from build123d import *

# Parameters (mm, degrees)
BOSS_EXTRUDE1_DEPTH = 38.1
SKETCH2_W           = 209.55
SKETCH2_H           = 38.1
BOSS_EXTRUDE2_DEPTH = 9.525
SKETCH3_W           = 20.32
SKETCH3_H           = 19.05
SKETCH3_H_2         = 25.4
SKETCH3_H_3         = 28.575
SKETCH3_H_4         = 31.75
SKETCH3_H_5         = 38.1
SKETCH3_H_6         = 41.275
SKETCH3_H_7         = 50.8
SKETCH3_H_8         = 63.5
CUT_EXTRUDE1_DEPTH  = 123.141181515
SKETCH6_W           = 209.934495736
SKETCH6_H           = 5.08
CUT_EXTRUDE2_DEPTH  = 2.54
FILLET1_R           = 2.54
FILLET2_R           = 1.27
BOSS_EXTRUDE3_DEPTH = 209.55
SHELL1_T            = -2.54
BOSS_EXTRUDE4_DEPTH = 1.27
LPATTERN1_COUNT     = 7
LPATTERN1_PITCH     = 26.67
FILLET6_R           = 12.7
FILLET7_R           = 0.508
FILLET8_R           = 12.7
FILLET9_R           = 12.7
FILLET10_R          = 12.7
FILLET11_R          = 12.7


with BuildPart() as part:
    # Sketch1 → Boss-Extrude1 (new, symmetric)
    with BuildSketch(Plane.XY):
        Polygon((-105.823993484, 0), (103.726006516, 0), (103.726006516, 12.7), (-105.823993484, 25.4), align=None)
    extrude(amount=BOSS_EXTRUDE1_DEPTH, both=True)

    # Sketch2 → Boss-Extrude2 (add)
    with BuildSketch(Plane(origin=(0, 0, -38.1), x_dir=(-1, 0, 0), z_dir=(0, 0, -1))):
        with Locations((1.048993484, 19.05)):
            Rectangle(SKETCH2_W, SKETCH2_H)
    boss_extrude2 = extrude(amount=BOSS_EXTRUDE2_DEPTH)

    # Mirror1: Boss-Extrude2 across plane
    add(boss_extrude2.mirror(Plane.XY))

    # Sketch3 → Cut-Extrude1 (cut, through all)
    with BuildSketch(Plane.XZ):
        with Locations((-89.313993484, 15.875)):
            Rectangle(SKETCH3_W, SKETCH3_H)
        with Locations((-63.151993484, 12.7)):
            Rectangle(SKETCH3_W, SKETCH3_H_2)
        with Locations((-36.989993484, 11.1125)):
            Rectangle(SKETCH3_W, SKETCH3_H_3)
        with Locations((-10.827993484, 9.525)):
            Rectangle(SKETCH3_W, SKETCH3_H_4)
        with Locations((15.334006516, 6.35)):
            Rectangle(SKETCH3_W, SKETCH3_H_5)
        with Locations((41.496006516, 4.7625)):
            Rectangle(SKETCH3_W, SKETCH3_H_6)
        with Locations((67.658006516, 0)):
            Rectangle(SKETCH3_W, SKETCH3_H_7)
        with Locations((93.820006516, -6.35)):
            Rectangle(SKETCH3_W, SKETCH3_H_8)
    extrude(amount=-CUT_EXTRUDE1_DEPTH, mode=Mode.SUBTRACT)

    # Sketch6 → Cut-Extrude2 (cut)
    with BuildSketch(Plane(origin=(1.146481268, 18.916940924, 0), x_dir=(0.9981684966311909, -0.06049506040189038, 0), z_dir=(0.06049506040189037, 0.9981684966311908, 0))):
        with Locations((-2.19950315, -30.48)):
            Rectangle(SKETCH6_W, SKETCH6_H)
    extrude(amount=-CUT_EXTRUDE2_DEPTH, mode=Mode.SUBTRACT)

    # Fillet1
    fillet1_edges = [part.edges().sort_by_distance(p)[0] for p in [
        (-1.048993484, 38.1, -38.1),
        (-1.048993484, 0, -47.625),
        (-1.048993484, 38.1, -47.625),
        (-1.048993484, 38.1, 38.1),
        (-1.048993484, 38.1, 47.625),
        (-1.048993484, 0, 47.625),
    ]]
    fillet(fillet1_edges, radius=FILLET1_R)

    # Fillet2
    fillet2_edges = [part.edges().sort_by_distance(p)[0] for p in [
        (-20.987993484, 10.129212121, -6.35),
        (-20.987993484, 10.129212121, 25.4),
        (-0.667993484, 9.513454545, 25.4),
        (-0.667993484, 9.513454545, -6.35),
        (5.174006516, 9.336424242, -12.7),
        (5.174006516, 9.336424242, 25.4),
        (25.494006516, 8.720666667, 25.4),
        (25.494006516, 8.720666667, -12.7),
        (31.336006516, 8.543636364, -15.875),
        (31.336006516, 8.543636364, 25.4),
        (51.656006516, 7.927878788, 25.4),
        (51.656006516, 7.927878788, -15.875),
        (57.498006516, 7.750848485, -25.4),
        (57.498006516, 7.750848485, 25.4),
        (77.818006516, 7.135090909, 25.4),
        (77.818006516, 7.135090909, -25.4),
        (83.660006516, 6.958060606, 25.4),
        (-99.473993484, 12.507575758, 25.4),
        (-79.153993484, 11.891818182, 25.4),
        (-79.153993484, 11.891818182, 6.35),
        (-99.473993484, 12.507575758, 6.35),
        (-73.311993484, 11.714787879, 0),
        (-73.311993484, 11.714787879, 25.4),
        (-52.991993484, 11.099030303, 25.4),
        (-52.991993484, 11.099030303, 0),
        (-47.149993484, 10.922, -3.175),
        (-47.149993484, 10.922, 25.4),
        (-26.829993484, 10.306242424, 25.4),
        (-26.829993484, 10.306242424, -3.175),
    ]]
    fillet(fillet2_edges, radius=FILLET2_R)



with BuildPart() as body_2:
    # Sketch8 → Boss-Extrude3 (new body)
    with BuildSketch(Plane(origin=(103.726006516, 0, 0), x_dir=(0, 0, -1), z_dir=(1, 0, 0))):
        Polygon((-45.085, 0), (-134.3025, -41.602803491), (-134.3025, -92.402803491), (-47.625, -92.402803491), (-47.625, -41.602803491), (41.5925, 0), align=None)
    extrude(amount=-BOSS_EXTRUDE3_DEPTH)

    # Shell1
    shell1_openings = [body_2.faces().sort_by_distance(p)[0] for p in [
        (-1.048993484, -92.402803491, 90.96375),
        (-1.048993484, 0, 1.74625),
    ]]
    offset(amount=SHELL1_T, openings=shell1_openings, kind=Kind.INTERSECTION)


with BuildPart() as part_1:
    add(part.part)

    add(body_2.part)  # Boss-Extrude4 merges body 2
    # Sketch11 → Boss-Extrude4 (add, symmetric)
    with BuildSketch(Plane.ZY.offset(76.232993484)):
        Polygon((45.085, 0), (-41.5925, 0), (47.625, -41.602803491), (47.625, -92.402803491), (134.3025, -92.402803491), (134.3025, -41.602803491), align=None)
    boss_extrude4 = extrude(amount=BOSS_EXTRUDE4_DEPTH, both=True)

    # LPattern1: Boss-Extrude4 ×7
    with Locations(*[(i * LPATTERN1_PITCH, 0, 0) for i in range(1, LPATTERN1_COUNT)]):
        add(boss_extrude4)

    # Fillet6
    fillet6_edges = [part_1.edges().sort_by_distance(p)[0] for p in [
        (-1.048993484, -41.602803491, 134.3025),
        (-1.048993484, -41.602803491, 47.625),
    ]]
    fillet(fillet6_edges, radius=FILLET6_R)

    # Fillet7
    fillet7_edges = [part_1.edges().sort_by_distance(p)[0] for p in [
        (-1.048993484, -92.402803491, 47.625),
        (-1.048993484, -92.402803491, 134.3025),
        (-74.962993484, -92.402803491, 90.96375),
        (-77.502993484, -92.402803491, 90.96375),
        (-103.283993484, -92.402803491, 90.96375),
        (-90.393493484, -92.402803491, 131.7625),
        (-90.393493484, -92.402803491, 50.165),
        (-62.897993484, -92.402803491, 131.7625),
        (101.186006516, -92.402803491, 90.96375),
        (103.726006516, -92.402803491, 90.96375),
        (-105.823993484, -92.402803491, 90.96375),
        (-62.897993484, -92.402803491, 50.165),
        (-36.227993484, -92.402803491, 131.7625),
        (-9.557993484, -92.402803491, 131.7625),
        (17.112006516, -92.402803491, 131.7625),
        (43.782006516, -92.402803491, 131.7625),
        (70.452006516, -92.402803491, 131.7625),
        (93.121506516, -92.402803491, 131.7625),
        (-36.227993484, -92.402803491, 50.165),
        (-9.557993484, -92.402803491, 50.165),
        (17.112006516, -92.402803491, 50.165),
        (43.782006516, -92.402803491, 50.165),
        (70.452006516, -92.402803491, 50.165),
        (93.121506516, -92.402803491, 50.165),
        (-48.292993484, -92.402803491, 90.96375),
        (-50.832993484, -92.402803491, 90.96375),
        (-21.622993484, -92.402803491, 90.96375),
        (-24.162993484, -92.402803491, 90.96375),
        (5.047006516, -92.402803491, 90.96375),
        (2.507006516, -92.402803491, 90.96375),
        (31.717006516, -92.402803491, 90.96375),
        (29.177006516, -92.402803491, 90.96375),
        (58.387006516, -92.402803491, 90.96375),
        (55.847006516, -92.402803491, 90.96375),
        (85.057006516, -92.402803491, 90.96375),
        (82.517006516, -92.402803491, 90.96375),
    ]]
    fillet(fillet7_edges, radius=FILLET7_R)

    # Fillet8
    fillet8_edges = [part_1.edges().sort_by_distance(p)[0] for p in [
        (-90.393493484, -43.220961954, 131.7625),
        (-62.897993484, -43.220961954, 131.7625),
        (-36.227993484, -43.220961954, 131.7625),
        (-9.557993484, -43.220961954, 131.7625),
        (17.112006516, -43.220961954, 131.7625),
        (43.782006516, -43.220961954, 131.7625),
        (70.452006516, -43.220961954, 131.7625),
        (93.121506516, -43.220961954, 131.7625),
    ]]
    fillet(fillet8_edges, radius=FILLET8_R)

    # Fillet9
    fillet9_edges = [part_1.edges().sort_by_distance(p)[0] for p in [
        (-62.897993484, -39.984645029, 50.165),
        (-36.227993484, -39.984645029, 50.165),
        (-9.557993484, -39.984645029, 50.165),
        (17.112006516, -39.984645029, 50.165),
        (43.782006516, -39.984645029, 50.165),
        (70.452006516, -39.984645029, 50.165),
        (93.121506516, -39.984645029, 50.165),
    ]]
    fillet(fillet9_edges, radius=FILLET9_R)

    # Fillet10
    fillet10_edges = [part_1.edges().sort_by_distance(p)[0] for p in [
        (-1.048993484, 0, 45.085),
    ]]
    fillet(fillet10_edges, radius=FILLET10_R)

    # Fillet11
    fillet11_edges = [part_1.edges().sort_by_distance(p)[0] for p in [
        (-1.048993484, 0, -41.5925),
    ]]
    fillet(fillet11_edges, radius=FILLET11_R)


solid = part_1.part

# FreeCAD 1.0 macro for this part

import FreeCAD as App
import Part
import Sketcher
from FreeCAD import Vector
Q = App.Units.Quantity


def edges_at(feature, points):
    """Names of the edges that pass closest to the given points."""
    edges = feature.Shape.Edges
    near = lambda p: min(range(len(edges)), key=lambda i: edges[i].distToShape(Part.Vertex(*p))[0])
    return sorted({f"Edge{near(p) + 1}" for p in points})


def faces_at(feature, points):
    """Names of the faces that lie closest to the given points."""
    faces = feature.Shape.Faces
    near = lambda p: min(range(len(faces)), key=lambda i: faces[i].distToShape(Part.Vertex(*p))[0])
    return sorted({f"Face{near(p) + 1}" for p in points})


def add_polygon(sketch, points):
    """Adds a closed chain of lines whose ends are joined by coincident constraints."""
    first, n = sketch.GeometryCount, len(points)
    for a, b in zip(points, points[1:] + points[:1]):
        sketch.addGeometry(Part.LineSegment(App.Vector(*a, 0), App.Vector(*b, 0)), False)
    for i in range(n):
        sketch.addConstraint(Sketcher.Constraint("Coincident", first + i, 2, first + (i + 1) % n, 1))

doc = App.newDocument("Part")
params = doc.addObject("Spreadsheet::Sheet", "Params")
for row, (alias, value) in enumerate([
    ("sketch1_height", "1 in"),
    ("sketch1_height2", "0.5 in"),
    ("sketch1_width", "8.25 in"),
    ("pad1_length", "3 in"),
    ("sketch2_height", "1.5 in"),
    ("sketch2_width", "8.25 in"),
    ("pad2_length", "0.375 in"),
    ("sketch3_height", "1 in"),
    ("sketch3_height2", "2 in"),
    ("sketch3_width", "0.8 in"),
    ("sketch3_height3", "1.5 in"),
    ("sketch3_height4", "2.5 in"),
    ("sketch4_height", "0.2 in"),
    ("pocket2_length", "0.1 in"),
    ("fillet_radius", "0.1 in"),
    ("fillet2_radius", "0.05 in"),
    ("sketch5_width", "2 in"),
    ("pad3_length", "8.25 in"),
    ("thickness_wall", "0.1 in"),
    ("sketch6_width", "2 in"),
    ("pad4_length", "0.1 in"),
    ("linearpattern_pitch", "1.05 in"),
    ("fillet3_radius", "0.5 in"),
    ("fillet4_radius", "0.02 in"),
    ("fillet5_radius", "0.5 in"),
    ("fillet6_radius", "0.5 in"),
    ("fillet7_radius", "0.5 in"),
    ("fillet8_radius", "0.5 in"),
], start=1):
    params.set(f"A{row}", alias)
    params.set(f"B{row}", "=" + value)
    params.setAlias(f"B{row}", alias)

body = doc.addObject("PartDesign::Body", "Body")

# Sketch on XY plane
sketch1 = body.newObject("Sketcher::SketchObject", "Sketch")
sketch1.AttachmentSupport = (doc.getObject("XY_Plane"), [""])
sketch1.MapMode = "FlatFace"
add_polygon(sketch1, [(-105.823993, 0), (103.726007, 0), (103.726007, 12.7), (-105.823993, 25.4)])  # lines 0-3
sketch1.addConstraint([
    Sketcher.Constraint("Horizontal", 0),
    Sketcher.Constraint("Vertical", 1),
    Sketcher.Constraint("Vertical", 3),
    Sketcher.Constraint("PointOnObject", 0, 2, -1),
    Sketcher.Constraint("DistanceY", 3, 2, 3, 1, Q("1 in")),
    Sketcher.Constraint("DistanceY", 1, 1, 1, 2, Q("0.5 in")),
    Sketcher.Constraint("DistanceX", 0, 1, 0, 2, Q("8.25 in")),
    Sketcher.Constraint("DistanceX", -1, 1, 0, 2, Q("103.726007 mm")),
])
sketch1.setExpression("Constraints[8]", "Params.sketch1_height")
sketch1.setExpression("Constraints[9]", "Params.sketch1_height2")
sketch1.setExpression("Constraints[10]", "Params.sketch1_width")
pad1 = body.newObject("PartDesign::Pad", "Pad")
pad1.Profile = sketch1
pad1.setExpression("Length", "Params.pad1_length")
pad1.Midplane = True

# Sketch on XY plane
sketch2 = body.newObject("Sketcher::SketchObject", "Sketch001")
sketch2.AttachmentSupport = (doc.getObject("XY_Plane"), [""])
sketch2.MapMode = "FlatFace"
sketch2.AttachmentOffset = App.Placement(Vector(0, 0, -1.5 * 25.4), App.Rotation())
add_polygon(sketch2, [(103.726007, 38.1), (103.726007, 0), (-105.823993, 0), (-105.823993, 38.1)])  # lines 0-3
sketch2.addConstraint([
    Sketcher.Constraint("Vertical", 0),
    Sketcher.Constraint("Horizontal", 1),
    Sketcher.Constraint("Vertical", 2),
    Sketcher.Constraint("Horizontal", 3),
    Sketcher.Constraint("PointOnObject", 0, 2, -1),
    Sketcher.Constraint("DistanceY", 0, 2, 0, 1, Q("1.5 in")),
    Sketcher.Constraint("DistanceX", 1, 2, 1, 1, Q("8.25 in")),
    Sketcher.Constraint("DistanceX", -1, 1, 0, 2, Q("103.726007 mm")),
])
sketch2.setExpression("Constraints[9]", "Params.sketch2_height")
sketch2.setExpression("Constraints[10]", "Params.sketch2_width")
pad2 = body.newObject("PartDesign::Pad", "Pad001")
pad2.Profile = sketch2
pad2.setExpression("Length", "Params.pad2_length")
pad2.Reversed = True
doc.recompute()

mirrored = body.newObject("PartDesign::Mirrored", "Mirrored")
mirrored.Originals = [pad2]
mirrored.MirrorPlane = (doc.getObject("XY_Plane"), [""])
body.Tip = mirrored

# Sketch on XZ plane
sketch3 = body.newObject("Sketcher::SketchObject", "Sketch002")
sketch3.AttachmentSupport = (doc.getObject("XZ_Plane"), [""])
sketch3.MapMode = "FlatFace"
add_polygon(sketch3, [(-99.473993, 25.4), (-99.473993, 6.35), (-79.153993, 6.35), (-79.153993, 25.4)])  # lines 0-3
add_polygon(sketch3, [(-73.311993, 25.4), (-73.311993, 0), (-52.991993, 0), (-52.991993, 25.4)])  # lines 4-7
add_polygon(sketch3, [(-47.149993, 25.4), (-47.149993, -3.175), (-26.829993, -3.175), (-26.829993, 25.4)])  # lines 8-11
add_polygon(sketch3, [(-20.987993, 25.4), (-20.987993, -6.35), (-0.667993, -6.35), (-0.667993, 25.4)])  # lines 12-15
add_polygon(sketch3, [(5.174007, 25.4), (5.174007, -12.7), (25.494007, -12.7), (25.494007, 25.4)])  # lines 16-19
add_polygon(sketch3, [(31.336007, 25.4), (31.336007, -15.875), (51.656007, -15.875), (51.656007, 25.4)])  # lines 20-23
add_polygon(sketch3, [(57.498007, 25.4), (57.498007, -25.4), (77.818007, -25.4), (77.818007, 25.4)])  # lines 24-27
add_polygon(sketch3, [(83.660007, 25.4), (83.660007, -38.1), (103.980007, -38.1), (103.980007, 25.4)])  # lines 28-31
sketch3.addConstraint([
    Sketcher.Constraint("Vertical", 0),
    Sketcher.Constraint("Horizontal", 1),
    Sketcher.Constraint("Vertical", 2),
    Sketcher.Constraint("Horizontal", 3),
    Sketcher.Constraint("Vertical", 4),
    Sketcher.Constraint("Horizontal", 5),
    Sketcher.Constraint("Vertical", 6),
    Sketcher.Constraint("Horizontal", 7),
    Sketcher.Constraint("Vertical", 8),
    Sketcher.Constraint("Horizontal", 9),
    Sketcher.Constraint("Vertical", 10),
    Sketcher.Constraint("Horizontal", 11),
    Sketcher.Constraint("Vertical", 12),
    Sketcher.Constraint("Horizontal", 13),
    Sketcher.Constraint("Vertical", 14),
    Sketcher.Constraint("Horizontal", 15),
    Sketcher.Constraint("Vertical", 16),
    Sketcher.Constraint("Horizontal", 17),
    Sketcher.Constraint("Vertical", 18),
    Sketcher.Constraint("Horizontal", 19),
    Sketcher.Constraint("Vertical", 20),
    Sketcher.Constraint("Horizontal", 21),
    Sketcher.Constraint("Vertical", 22),
    Sketcher.Constraint("Horizontal", 23),
    Sketcher.Constraint("Vertical", 24),
    Sketcher.Constraint("Horizontal", 25),
    Sketcher.Constraint("Vertical", 26),
    Sketcher.Constraint("Horizontal", 27),
    Sketcher.Constraint("Vertical", 28),
    Sketcher.Constraint("Horizontal", 29),
    Sketcher.Constraint("Vertical", 30),
    Sketcher.Constraint("Horizontal", 31),
    Sketcher.Constraint("PointOnObject", 4, 2, -1),
    Sketcher.Constraint("Horizontal", 3, 2, 6, 2),
    Sketcher.Constraint("Horizontal", 7, 2, 10, 2),
    Sketcher.Constraint("Horizontal", 11, 2, 14, 2),
    Sketcher.Constraint("Horizontal", 15, 2, 18, 2),
    Sketcher.Constraint("Horizontal", 19, 2, 22, 2),
    Sketcher.Constraint("Horizontal", 23, 2, 26, 2),
    Sketcher.Constraint("Horizontal", 27, 2, 30, 2),
    Sketcher.Constraint("Equal", 3, 5),
    Sketcher.Constraint("Equal", 7, 9),
    Sketcher.Constraint("Equal", 11, 13),
    Sketcher.Constraint("Equal", 15, 17),
    Sketcher.Constraint("Equal", 19, 21),
    Sketcher.Constraint("Equal", 23, 25),
    Sketcher.Constraint("Equal", 27, 29),
    Sketcher.Constraint("DistanceY", 4, 2, 4, 1, Q("1 in")),
    Sketcher.Constraint("DistanceY", 24, 2, 24, 1, Q("2 in")),
    Sketcher.Constraint("DistanceX", 1, 1, 1, 2, Q("0.8 in")),
    Sketcher.Constraint("DistanceY", 16, 2, 16, 1, Q("1.5 in")),
    Sketcher.Constraint("DistanceY", 28, 2, 28, 1, Q("2.5 in")),
    Sketcher.Constraint("DistanceY", 0, 2, 0, 1, Q("0.75 in")),
    Sketcher.Constraint("DistanceY", 12, 2, 12, 1, Q("1.25 in")),
    Sketcher.Constraint("DistanceY", 8, 2, 8, 1, Q("1.125 in")),
    Sketcher.Constraint("DistanceY", 20, 2, 20, 1, Q("1.625 in")),
    Sketcher.Constraint("DistanceX", 1, 2, 4, 2, Q("0.23 in")),
    Sketcher.Constraint("DistanceX", 5, 2, 8, 2, Q("0.23 in")),
    Sketcher.Constraint("DistanceX", 9, 2, 12, 2, Q("0.23 in")),
    Sketcher.Constraint("DistanceX", 13, 2, 16, 2, Q("0.23 in")),
    Sketcher.Constraint("DistanceX", 17, 2, 20, 2, Q("0.23 in")),
    Sketcher.Constraint("DistanceX", 21, 2, 24, 2, Q("0.23 in")),
    Sketcher.Constraint("DistanceX", 25, 2, 28, 2, Q("0.23 in")),
    Sketcher.Constraint("DistanceX", 0, 2, -1, 1, Q("99.473993 mm")),
])
sketch3.setExpression("Constraints[79]", "Params.sketch3_height")
sketch3.setExpression("Constraints[80]", "Params.sketch3_height2")
sketch3.setExpression("Constraints[81]", "Params.sketch3_width")
sketch3.setExpression("Constraints[82]", "Params.sketch3_height3")
sketch3.setExpression("Constraints[83]", "Params.sketch3_height4")
pocket1 = body.newObject("PartDesign::Pocket", "Pocket")
pocket1.Profile = sketch3
pocket1.Type = "ThroughAll"

# Sketch on an angled plane
sketch4 = body.newObject("Sketcher::SketchObject", "Sketch003")
sketch4.Placement = App.Placement(Vector(1.146481, 18.916941, 0), App.Rotation(Vector(0.998168497, -0.06049506, 0), Vector(0, 0, -1.000000001), Vector(0.06049506, 0.998168497, 0), "ZXY"))
add_polygon(sketch4, [(-107.166751, -27.94), (-107.166751, -33.02), (102.767745, -33.02), (102.767745, -27.94)])  # lines 0-3
sketch4.addConstraint([
    Sketcher.Constraint("Vertical", 0),
    Sketcher.Constraint("Horizontal", 1),
    Sketcher.Constraint("Vertical", 2),
    Sketcher.Constraint("Horizontal", 3),
    Sketcher.Constraint("DistanceY", 0, 2, 0, 1, Q("0.2 in")),
    Sketcher.Constraint("DistanceY", 0, 2, -1, 1, Q("1.3 in")),
    Sketcher.Constraint("DistanceX", 1, 1, 1, 2, Q("209.934496 mm")),
    Sketcher.Constraint("DistanceX", 0, 2, -1, 1, Q("107.166751 mm")),
])
sketch4.setExpression("Constraints[8]", "Params.sketch4_height")
pocket2 = body.newObject("PartDesign::Pocket", "Pocket001")
pocket2.Profile = sketch4
pocket2.setExpression("Length", "Params.pocket2_length")
doc.recompute()

fillet = body.newObject("PartDesign::Fillet", "Fillet")
fillet.Base = (pocket2, edges_at(pocket2, [
    (-1.049, 38.1, -38.1),
    (-1.049, 0, -47.625),
    (-1.049, 38.1, -47.625),
    (-1.049, 38.1, 38.1),
    (-1.049, 38.1, 47.625),
    (-1.049, 0, 47.625),
]))
fillet.setExpression("Radius", "Params.fillet_radius")
doc.recompute()

fillet2 = body.newObject("PartDesign::Fillet", "Fillet001")
fillet2.Base = (fillet, edges_at(fillet, [
    (-20.988, 10.129, -6.35),
    (-20.988, 10.129, 25.4),
    (-0.668, 9.513, 25.4),
    (-0.668, 9.513, -6.35),
    (5.174, 9.336, -12.7),
    (5.174, 9.336, 25.4),
    (25.494, 8.721, 25.4),
    (25.494, 8.721, -12.7),
    (31.336, 8.544, -15.875),
    (31.336, 8.544, 25.4),
    (51.656, 7.928, 25.4),
    (51.656, 7.928, -15.875),
    (57.498, 7.751, -25.4),
    (57.498, 7.751, 25.4),
    (77.818, 7.135, 25.4),
    (77.818, 7.135, -25.4),
    (83.66, 6.958, 25.4),
    (-99.474, 12.508, 25.4),
    (-79.154, 11.892, 25.4),
    (-79.154, 11.892, 6.35),
    (-99.474, 12.508, 6.35),
    (-73.312, 11.715, 0),
    (-73.312, 11.715, 25.4),
    (-52.992, 11.099, 25.4),
    (-52.992, 11.099, 0),
    (-47.15, 10.922, -3.175),
    (-47.15, 10.922, 25.4),
    (-26.83, 10.306, 25.4),
    (-26.83, 10.306, -3.175),
]))
fillet2.setExpression("Radius", "Params.fillet2_radius")
body2 = doc.addObject("PartDesign::Body", "Body001")

# Sketch on YZ plane
sketch5 = body2.newObject("Sketcher::SketchObject", "Sketch004")
sketch5.AttachmentSupport = (doc.getObject("YZ_Plane001"), [""])
sketch5.MapMode = "FlatFace"
sketch5.AttachmentOffset = App.Placement(Vector(0, 0, 103.726007), App.Rotation())
add_polygon(sketch5, [(0, 45.085), (-41.602803, 134.3025), (-92.402803, 134.3025), (-92.402803, 47.625), (-41.602803, 47.625), (0, -41.5925)])  # lines 0-5
sketch5.addConstraint([
    Sketcher.Constraint("Horizontal", 1),
    Sketcher.Constraint("Vertical", 2),
    Sketcher.Constraint("Horizontal", 3),
    Sketcher.Constraint("Vertical", 5),
    Sketcher.Constraint("PointOnObject", 4, 2, -2),
    Sketcher.Constraint("Parallel", 0, 4),
    Sketcher.Constraint("Vertical", 0, 2, 3, 2),
    Sketcher.Constraint("DistanceX", 1, 2, 1, 1, Q("2 in")),
    Sketcher.Constraint("Angle", 0, Q("115 deg")),
    Sketcher.Constraint("DistanceY", 5, 2, 3, 2, Q("0.1 in")),
    Sketcher.Constraint("DistanceY", 2, 2, 2, 1, Q("3.4125 in")),
    Sketcher.Constraint("DistanceY", -1, 1, 2, 2, Q("1.875 in")),
])
sketch5.setExpression("Constraints[13]", "Params.sketch5_width")
pad3 = body2.newObject("PartDesign::Pad", "Pad002")
pad3.Profile = sketch5
pad3.setExpression("Length", "Params.pad3_length")
pad3.Reversed = True
doc.recompute()

thickness = body2.newObject("PartDesign::Thickness", "Thickness")
thickness.Base = (pad3, faces_at(pad3, [(-1.049, -92.403, 90.964), (-1.049, 0, 1.746)]))
thickness.setExpression("Value", "Params.thickness_wall")
thickness.Reversed = True
thickness.Join = "Intersection"
doc.recompute()

boolean = body.newObject("PartDesign::Boolean", "Boolean")
boolean.Type = "Fuse"
boolean.addObjects([body2])

# Sketch on YZ plane
sketch6 = body.newObject("Sketcher::SketchObject", "Sketch005")
sketch6.AttachmentSupport = (doc.getObject("YZ_Plane"), [""])
sketch6.MapMode = "FlatFace"
sketch6.AttachmentOffset = App.Placement(Vector(0, 0, -76.232993), App.Rotation())
add_polygon(sketch6, [(0, 45.085), (0, -41.5925), (-41.602803, 47.625), (-92.402803, 47.625), (-92.402803, 134.3025), (-41.602803, 134.3025)])  # lines 0-5
sketch6.addConstraint([
    Sketcher.Constraint("Vertical", 0),
    Sketcher.Constraint("Horizontal", 2),
    Sketcher.Constraint("Vertical", 3),
    Sketcher.Constraint("Horizontal", 4),
    Sketcher.Constraint("PointOnObject", 0, 2, -2),
    Sketcher.Constraint("Parallel", 1, 5),
    Sketcher.Constraint("Vertical", 1, 2, 4, 2),
    Sketcher.Constraint("DistanceX", 2, 2, 2, 1, Q("2 in")),
    Sketcher.Constraint("Angle", 1, Q("115 deg")),
    Sketcher.Constraint("DistanceY", 5, 2, 1, 2, Q("0.1 in")),
    Sketcher.Constraint("DistanceY", 0, 2, 0, 1, Q("3.4125 in")),
    Sketcher.Constraint("DistanceY", -1, 1, 1, 2, Q("1.875 in")),
])
sketch6.setExpression("Constraints[13]", "Params.sketch6_width")
pad4 = body.newObject("PartDesign::Pad", "Pad003")
pad4.Profile = sketch6
pad4.setExpression("Length", "Params.pad4_length")
pad4.Midplane = True
doc.recompute()

linearpattern = body.newObject("PartDesign::LinearPattern", "LinearPattern")
linearpattern.Originals = [pad4]
linearpattern.Direction = (doc.getObject("X_Axis"), [""])
linearpattern.Mode = "offset"
linearpattern.setExpression("Offset", "Params.linearpattern_pitch")
linearpattern.Occurrences = 7
body.Tip = linearpattern
doc.recompute()

fillet3 = body.newObject("PartDesign::Fillet", "Fillet002")
fillet3.Base = (linearpattern, edges_at(linearpattern, [(-1.049, -41.603, 134.303), (-1.049, -41.603, 47.625)]))
fillet3.setExpression("Radius", "Params.fillet3_radius")
doc.recompute()

fillet4 = body.newObject("PartDesign::Fillet", "Fillet003")
fillet4.Base = (fillet3, edges_at(fillet3, [
    (-1.049, -92.403, 47.625),
    (-1.049, -92.403, 134.303),
    (-74.963, -92.403, 90.964),
    (-77.503, -92.403, 90.964),
    (-103.284, -92.403, 90.964),
    (-90.393, -92.403, 131.762),
    (-90.393, -92.403, 50.165),
    (-62.898, -92.403, 131.762),
    (101.186, -92.403, 90.964),
    (103.726, -92.403, 90.964),
    (-105.824, -92.403, 90.964),
    (-62.898, -92.403, 50.165),
    (-36.228, -92.403, 131.762),
    (-9.558, -92.403, 131.762),
    (17.112, -92.403, 131.762),
    (43.782, -92.403, 131.762),
    (70.452, -92.403, 131.762),
    (93.122, -92.403, 131.762),
    (-36.228, -92.403, 50.165),
    (-9.558, -92.403, 50.165),
    (17.112, -92.403, 50.165),
    (43.782, -92.403, 50.165),
    (70.452, -92.403, 50.165),
    (93.122, -92.403, 50.165),
    (-48.293, -92.403, 90.964),
    (-50.833, -92.403, 90.964),
    (-21.623, -92.403, 90.964),
    (-24.163, -92.403, 90.964),
    (5.047, -92.403, 90.964),
    (2.507, -92.403, 90.964),
    (31.717, -92.403, 90.964),
    (29.177, -92.403, 90.964),
    (58.387, -92.403, 90.964),
    (55.847, -92.403, 90.964),
    (85.057, -92.403, 90.964),
    (82.517, -92.403, 90.964),
]))
fillet4.setExpression("Radius", "Params.fillet4_radius")
doc.recompute()

fillet5 = body.newObject("PartDesign::Fillet", "Fillet004")
fillet5.Base = (fillet4, edges_at(fillet4, [
    (-90.393, -43.221, 131.762),
    (-62.898, -43.221, 131.762),
    (-36.228, -43.221, 131.762),
    (-9.558, -43.221, 131.762),
    (17.112, -43.221, 131.762),
    (43.782, -43.221, 131.762),
    (70.452, -43.221, 131.762),
    (93.122, -43.221, 131.762),
]))
fillet5.setExpression("Radius", "Params.fillet5_radius")
doc.recompute()

fillet6 = body.newObject("PartDesign::Fillet", "Fillet005")
fillet6.Base = (fillet5, edges_at(fillet5, [
    (-62.898, -39.985, 50.165),
    (-36.228, -39.985, 50.165),
    (-9.558, -39.985, 50.165),
    (17.112, -39.985, 50.165),
    (43.782, -39.985, 50.165),
    (70.452, -39.985, 50.165),
    (93.122, -39.985, 50.165),
]))
fillet6.setExpression("Radius", "Params.fillet6_radius")
doc.recompute()

fillet7 = body.newObject("PartDesign::Fillet", "Fillet006")
fillet7.Base = (fillet6, edges_at(fillet6, [(-1.049, 0, 45.085)]))
fillet7.setExpression("Radius", "Params.fillet7_radius")
doc.recompute()

fillet8 = body.newObject("PartDesign::Fillet", "Fillet007")
fillet8.Base = (fillet7, edges_at(fillet7, [(-1.049, 0, -41.593)]))
fillet8.setExpression("Radius", "Params.fillet8_radius")

doc.recompute()
